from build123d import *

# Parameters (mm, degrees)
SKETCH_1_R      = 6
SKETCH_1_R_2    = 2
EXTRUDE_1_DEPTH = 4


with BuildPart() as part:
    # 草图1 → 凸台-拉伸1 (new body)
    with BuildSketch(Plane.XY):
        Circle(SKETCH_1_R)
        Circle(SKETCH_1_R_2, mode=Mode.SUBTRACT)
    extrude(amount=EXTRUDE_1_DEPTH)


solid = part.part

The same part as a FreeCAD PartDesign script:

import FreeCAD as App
import Part
import Sketcher
Q = App.Units.Quantity

doc = App.newDocument("Part")
body = doc.addObject("PartDesign::Body", "Body")

sketch1 = body.newObject("Sketcher::SketchObject", "Sketch")
sketch1.AttachmentSupport = (doc.getObject("XY_Plane"), [""])
sketch1.MapMode = "FlatFace"
sketch1.addGeometry(Part.Circle(App.Vector(0, 0, 0), App.Vector(0, 0, 1), 6), False)
sketch1.addGeometry(Part.Circle(App.Vector(0, 0, 0), App.Vector(0, 0, 1), 2), False)
sketch1.addConstraint(Sketcher.Constraint("Coincident", 0, 3, -1, 1))
sketch1.addConstraint(Sketcher.Constraint("Coincident", 1, 3, -1, 1))
sketch1.addConstraint(Sketcher.Constraint("Diameter", 0, Q("12 mm")))
sketch1.addConstraint(Sketcher.Constraint("Diameter", 1, Q("4 mm")))
pad1 = body.newObject("PartDesign::Pad", "Pad")
pad1.Profile = sketch1
pad1.Length = 4

doc.recompute()
